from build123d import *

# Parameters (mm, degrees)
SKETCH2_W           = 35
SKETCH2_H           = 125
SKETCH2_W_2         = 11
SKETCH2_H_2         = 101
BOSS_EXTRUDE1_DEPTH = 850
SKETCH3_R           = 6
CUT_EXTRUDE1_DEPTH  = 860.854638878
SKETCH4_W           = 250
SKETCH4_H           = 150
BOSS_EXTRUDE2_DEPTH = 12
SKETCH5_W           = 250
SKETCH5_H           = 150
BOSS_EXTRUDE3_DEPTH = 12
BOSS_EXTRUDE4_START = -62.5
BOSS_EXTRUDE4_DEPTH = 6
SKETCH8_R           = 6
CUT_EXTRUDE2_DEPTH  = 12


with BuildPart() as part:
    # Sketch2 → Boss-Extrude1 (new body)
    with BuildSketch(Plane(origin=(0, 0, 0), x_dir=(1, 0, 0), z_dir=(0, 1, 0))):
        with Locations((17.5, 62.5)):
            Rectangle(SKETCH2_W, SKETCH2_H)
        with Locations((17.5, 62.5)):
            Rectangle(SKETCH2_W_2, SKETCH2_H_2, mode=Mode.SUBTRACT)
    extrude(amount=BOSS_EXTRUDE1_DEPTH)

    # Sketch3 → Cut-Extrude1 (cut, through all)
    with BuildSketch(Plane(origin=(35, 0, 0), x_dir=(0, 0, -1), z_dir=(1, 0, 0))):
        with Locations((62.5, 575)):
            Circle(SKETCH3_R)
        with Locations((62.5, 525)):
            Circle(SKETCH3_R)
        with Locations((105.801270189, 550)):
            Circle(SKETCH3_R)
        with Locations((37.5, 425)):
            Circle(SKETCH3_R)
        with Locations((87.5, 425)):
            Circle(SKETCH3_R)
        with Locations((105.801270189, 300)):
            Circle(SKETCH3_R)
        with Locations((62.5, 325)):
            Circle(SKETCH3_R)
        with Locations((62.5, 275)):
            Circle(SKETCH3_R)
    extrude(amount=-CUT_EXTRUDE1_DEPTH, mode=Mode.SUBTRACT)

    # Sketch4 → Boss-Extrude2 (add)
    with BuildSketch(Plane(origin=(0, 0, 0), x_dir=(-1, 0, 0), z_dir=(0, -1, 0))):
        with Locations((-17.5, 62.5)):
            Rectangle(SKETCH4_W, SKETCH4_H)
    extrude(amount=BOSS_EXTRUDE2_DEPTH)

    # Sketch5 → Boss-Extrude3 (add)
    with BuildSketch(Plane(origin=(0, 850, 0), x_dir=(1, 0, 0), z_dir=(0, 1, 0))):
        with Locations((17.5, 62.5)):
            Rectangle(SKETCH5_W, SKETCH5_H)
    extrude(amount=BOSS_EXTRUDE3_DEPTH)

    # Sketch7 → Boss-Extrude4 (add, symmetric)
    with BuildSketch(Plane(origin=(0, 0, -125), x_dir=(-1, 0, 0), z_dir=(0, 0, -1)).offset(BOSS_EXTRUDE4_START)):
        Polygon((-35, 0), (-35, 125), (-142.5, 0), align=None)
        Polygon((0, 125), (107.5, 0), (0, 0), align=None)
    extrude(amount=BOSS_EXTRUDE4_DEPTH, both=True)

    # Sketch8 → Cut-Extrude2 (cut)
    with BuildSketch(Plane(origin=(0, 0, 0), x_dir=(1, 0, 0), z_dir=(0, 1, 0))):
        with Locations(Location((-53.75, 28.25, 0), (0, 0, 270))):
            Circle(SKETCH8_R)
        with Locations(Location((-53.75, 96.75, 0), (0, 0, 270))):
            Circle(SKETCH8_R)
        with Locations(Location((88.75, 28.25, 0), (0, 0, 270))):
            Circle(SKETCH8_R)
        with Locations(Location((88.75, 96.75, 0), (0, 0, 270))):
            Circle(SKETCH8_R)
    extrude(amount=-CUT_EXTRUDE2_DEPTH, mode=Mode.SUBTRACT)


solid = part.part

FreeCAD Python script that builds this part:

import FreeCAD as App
import Part
import Sketcher
from FreeCAD import Vector

doc = App.newDocument("Part")
body = doc.addObject("PartDesign::Body", "Body")

# Sketch on XZ plane
sketch1 = body.newObject("Sketcher::SketchObject", "Sketch")
sketch1.AttachmentSupport = (doc.getObject("XZ_Plane"), [""])
sketch1.MapMode = "FlatFace"
sketch1.addGeometry(Part.LineSegment(Vector(0, -125, 0), Vector(0, 0, 0)), False)
sketch1.addGeometry(Part.LineSegment(Vector(0, 0, 0), Vector(35, 0, 0)), False)
sketch1.addGeometry(Part.LineSegment(Vector(35, 0, 0), Vector(35, -125, 0)), False)
sketch1.addGeometry(Part.LineSegment(Vector(35, -125, 0), Vector(0, -125, 0)), False)
sketch1.addGeometry(Part.LineSegment(Vector(23, -12, 0), Vector(12, -12, 0)), False)
sketch1.addGeometry(Part.LineSegment(Vector(12, -12, 0), Vector(12, -113, 0)), False)
sketch1.addGeometry(Part.LineSegment(Vector(12, -113, 0), Vector(23, -113, 0)), False)
sketch1.addGeometry(Part.LineSegment(Vector(23, -113, 0), Vector(23, -12, 0)), False)
sketch1.addConstraint(Sketcher.Constraint("Coincident", 0, 2, 1, 1))
sketch1.addConstraint(Sketcher.Constraint("Coincident", 1, 2, 2, 1))
sketch1.addConstraint(Sketcher.Constraint("Coincident", 2, 2, 3, 1))
sketch1.addConstraint(Sketcher.Constraint("Coincident", 3, 2, 0, 1))
sketch1.addConstraint(Sketcher.Constraint("Coincident", 4, 2, 5, 1))
sketch1.addConstraint(Sketcher.Constraint("Coincident", 5, 2, 6, 1))
sketch1.addConstraint(Sketcher.Constraint("Coincident", 6, 2, 7, 1))
sketch1.addConstraint(Sketcher.Constraint("Coincident", 7, 2, 4, 1))
sketch1.addConstraint(Sketcher.Constraint("Vertical", 0))
sketch1.addConstraint(Sketcher.Constraint("Horizontal", 1))
sketch1.addConstraint(Sketcher.Constraint("Vertical", 2))
sketch1.addConstraint(Sketcher.Constraint("Horizontal", 3))
sketch1.addConstraint(Sketcher.Constraint("Horizontal", 4))
sketch1.addConstraint(Sketcher.Constraint("Vertical", 5))
sketch1.addConstraint(Sketcher.Constraint("Horizontal", 6))
sketch1.addConstraint(Sketcher.Constraint("Vertical", 7))
sketch1.addConstraint(Sketcher.Constraint("Coincident", 0, 2, -1, 1))
sketch1.addConstraint(Sketcher.Constraint("DistanceX", 1, 1, 1, 2, 35.0))
sketch1.addConstraint(Sketcher.Constraint("DistanceX", 4, 2, 4, 1, 11.0))
sketch1.addConstraint(Sketcher.Constraint("DistanceY", 0, 1, 0, 2, 125.0))
sketch1.addConstraint(Sketcher.Constraint("DistanceY", 5, 2, 5, 1, 101.0))
sketch1.addConstraint(Sketcher.Constraint("DistanceX", -1, 1, 4, 2, 12.0))
sketch1.addConstraint(Sketcher.Constraint("DistanceY", 4, 2, -1, 1, 12.0))
pad1 = body.newObject("PartDesign::Pad", "Pad")
pad1.Profile = sketch1
pad1.Length = 850
pad1.Reversed = True

# Sketch on YZ plane
sketch2 = body.newObject("Sketcher::SketchObject", "Sketch001")
sketch2.AttachmentSupport = (doc.getObject("YZ_Plane"), [""])
sketch2.MapMode = "FlatFace"
sketch2.AttachmentOffset = App.Placement(Vector(0, 0, 35), App.Rotation())
sketch2.addGeometry(Part.Circle(Vector(575, -62, 0), Vector(0, 0, 1), 6), False)
sketch2.addGeometry(Part.Circle(Vector(525, -62, 0), Vector(0, 0, 1), 6), False)
sketch2.addGeometry(Part.Circle(Vector(550, -106, 0), Vector(0, 0, 1), 6), False)
sketch2.addGeometry(Part.Circle(Vector(425, -38, 0), Vector(0, 0, 1), 6), False)
sketch2.addGeometry(Part.Circle(Vector(425, -88, 0), Vector(0, 0, 1), 6), False)
sketch2.addGeometry(Part.Circle(Vector(300, -106, 0), Vector(0, 0, 1), 6), False)
sketch2.addGeometry(Part.Circle(Vector(325, -62, 0), Vector(0, 0, 1), 6), False)
sketch2.addGeometry(Part.Circle(Vector(275, -62, 0), Vector(0, 0, 1), 6), False)
sketch2.addConstraint(Sketcher.Constraint("Equal", 0, 1))
sketch2.addConstraint(Sketcher.Constraint("Equal", 1, 2))
sketch2.addConstraint(Sketcher.Constraint("Equal", 2, 3))
sketch2.addConstraint(Sketcher.Constraint("Equal", 3, 4))
sketch2.addConstraint(Sketcher.Constraint("Equal", 4, 5))
sketch2.addConstraint(Sketcher.Constraint("Equal", 5, 6))
sketch2.addConstraint(Sketcher.Constraint("Equal", 6, 7))
sketch2.addConstraint(Sketcher.Constraint("Horizontal", 0, 3, 1, 3))
sketch2.addConstraint(Sketcher.Constraint("Horizontal", 2, 3, 5, 3))
sketch2.addConstraint(Sketcher.Constraint("Horizontal", 1, 3, 6, 3))
sketch2.addConstraint(Sketcher.Constraint("Horizontal", 6, 3, 7, 3))
sketch2.addConstraint(Sketcher.Constraint("Vertical", 3, 3, 4, 3))
sketch2.addConstraint(Sketcher.Constraint("Diameter", 0, 12.0))
sketch2.addConstraint(Sketcher.Constraint("DistanceX", -1, 1, 0, 3, 575.0))
sketch2.addConstraint(Sketcher.Constraint("DistanceX", -1, 1, 1, 3, 525.0))
sketch2.addConstraint(Sketcher.Constraint("DistanceX", -1, 1, 2, 3, 550.0))
sketch2.addConstraint(Sketcher.Constraint("DistanceX", -1, 1, 3, 3, 425.0))
sketch2.addConstraint(Sketcher.Constraint("DistanceX", -1, 1, 5, 3, 300.0))
sketch2.addConstraint(Sketcher.Constraint("DistanceX", -1, 1, 6, 3, 325.0))
sketch2.addConstraint(Sketcher.Constraint("DistanceX", -1, 1, 7, 3, 275.0))
sketch2.addConstraint(Sketcher.Constraint("DistanceY", 1, 3, 3, 3, 25.0))
sketch2.addConstraint(Sketcher.Constraint("DistanceY", 4, 3, 3, 3, 50.0))
sketch2.addConstraint(Sketcher.Constraint("DistanceY", 0, 3, -1, 1, 62.5))
sketch2.addConstraint(Sketcher.Constraint("DistanceY", 2, 3, -1, 1, 105.80127))
pocket1 = body.newObject("PartDesign::Pocket", "Pocket")
pocket1.Profile = sketch2
pocket1.Type = "ThroughAll"

# Sketch on XZ plane
sketch3 = body.newObject("Sketcher::SketchObject", "Sketch002")
sketch3.AttachmentSupport = (doc.getObject("XZ_Plane"), [""])
sketch3.MapMode = "FlatFace"
sketch3.addGeometry(Part.LineSegment(Vector(142, -138, 0), Vector(142, 12, 0)), False)
sketch3.addGeometry(Part.LineSegment(Vector(142, 12, 0), Vector(-108, 12, 0)), False)
sketch3.addGeometry(Part.LineSegment(Vector(-108, 12, 0), Vector(-108, -138, 0)), False)
sketch3.addGeometry(Part.LineSegment(Vector(-108, -138, 0), Vector(142, -138, 0)), False)
sketch3.addConstraint(Sketcher.Constraint("Coincident", 0, 2, 1, 1))
sketch3.addConstraint(Sketcher.Constraint("Coincident", 1, 2, 2, 1))
sketch3.addConstraint(Sketcher.Constraint("Coincident", 2, 2, 3, 1))
sketch3.addConstraint(Sketcher.Constraint("Coincident", 3, 2, 0, 1))
sketch3.addConstraint(Sketcher.Constraint("Vertical", 0))
sketch3.addConstraint(Sketcher.Constraint("Horizontal", 1))
sketch3.addConstraint(Sketcher.Constraint("Vertical", 2))
sketch3.addConstraint(Sketcher.Constraint("Horizontal", 3))
sketch3.addConstraint(Sketcher.Constraint("DistanceX", 1, 2, 1, 1, 250.0))
sketch3.addConstraint(Sketcher.Constraint("DistanceY", 0, 1, 0, 2, 150.0))
sketch3.addConstraint(Sketcher.Constraint("DistanceX", -1, 1, 0, 2, 142.5))
sketch3.addConstraint(Sketcher.Constraint("DistanceY", -1, 1, 0, 2, 12.5))
pad2 = body.newObject("PartDesign::Pad", "Pad001")
pad2.Profile = sketch3
pad2.Length = 12

# Sketch on XZ plane
sketch4 = body.newObject("Sketcher::SketchObject", "Sketch003")
sketch4.AttachmentSupport = (doc.getObject("XZ_Plane"), [""])
sketch4.MapMode = "FlatFace"
sketch4.AttachmentOffset = App.Placement(Vector(0, 0, -850), App.Rotation())
sketch4.addGeometry(Part.LineSegment(Vector(-108, -138, 0), Vector(-108, 12, 0)), False)
sketch4.addGeometry(Part.LineSegment(Vector(-108, 12, 0), Vector(142, 12, 0)), False)
sketch4.addGeometry(Part.LineSegment(Vector(142, 12, 0), Vector(142, -138, 0)), False)
sketch4.addGeometry(Part.LineSegment(Vector(142, -138, 0), Vector(-108, -138, 0)), False)
sketch4.addConstraint(Sketcher.Constraint("Coincident", 0, 2, 1, 1))
sketch4.addConstraint(Sketcher.Constraint("Coincident", 1, 2, 2, 1))
sketch4.addConstraint(Sketcher.Constraint("Coincident", 2, 2, 3, 1))
sketch4.addConstraint(Sketcher.Constraint("Coincident", 3, 2, 0, 1))
sketch4.addConstraint(Sketcher.Constraint("Vertical", 0))
sketch4.addConstraint(Sketcher.Constraint("Horizontal", 1))
sketch4.addConstraint(Sketcher.Constraint("Vertical", 2))
sketch4.addConstraint(Sketcher.Constraint("Horizontal", 3))
sketch4.addConstraint(Sketcher.Constraint("DistanceX", 1, 1, 1, 2, 250.0))
sketch4.addConstraint(Sketcher.Constraint("DistanceY", 0, 1, 0, 2, 150.0))
sketch4.addConstraint(Sketcher.Constraint("DistanceX", 0, 2, -1, 1, 107.5))
sketch4.addConstraint(Sketcher.Constraint("DistanceY", -1, 1, 0, 2, 12.5))
pad3 = body.newObject("PartDesign::Pad", "Pad002")
pad3.Profile = sketch4
pad3.Length = 12
pad3.Reversed = True

# Sketch on XY plane
sketch5 = body.newObject("Sketcher::SketchObject", "Sketch004")
sketch5.AttachmentSupport = (doc.getObject("XY_Plane"), [""])
sketch5.MapMode = "FlatFace"
sketch5.AttachmentOffset = App.Placement(Vector(0, 0, -62.5), App.Rotation())
sketch5.addGeometry(Part.LineSegment(Vector(35, 0, 0), Vector(35, 125, 0)), False)
sketch5.addGeometry(Part.LineSegment(Vector(35, 125, 0), Vector(142, 0, 0)), False)
sketch5.addGeometry(Part.LineSegment(Vector(142, 0, 0), Vector(35, 0, 0)), False)
sketch5.addGeometry(Part.LineSegment(Vector(-108, 0, 0), Vector(0, 125, 0)), False)
sketch5.addGeometry(Part.LineSegment(Vector(0, 125, 0), Vector(0, 0, 0)), False)
sketch5.addGeometry(Part.LineSegment(Vector(0, 0, 0), Vector(-108, 0, 0)), False)
sketch5.addConstraint(Sketcher.Constraint("Coincident", 0, 2, 1, 1))
sketch5.addConstraint(Sketcher.Constraint("Coincident", 1, 2, 2, 1))
sketch5.addConstraint(Sketcher.Constraint("Coincident", 2, 2, 0, 1))
sketch5.addConstraint(Sketcher.Constraint("Coincident", 3, 2, 4, 1))
sketch5.addConstraint(Sketcher.Constraint("Coincident", 4, 2, 5, 1))
sketch5.addConstraint(Sketcher.Constraint("Coincident", 5, 2, 3, 1))
sketch5.addConstraint(Sketcher.Constraint("Vertical", 0))
sketch5.addConstraint(Sketcher.Constraint("Horizontal", 2))
sketch5.addConstraint(Sketcher.Constraint("Vertical", 4))
sketch5.addConstraint(Sketcher.Constraint("Horizontal", 5))
sketch5.addConstraint(Sketcher.Constraint("Coincident", 4, 2, -1, 1))
sketch5.addConstraint(Sketcher.Constraint("PointOnObject", 1, 2, -1))
sketch5.addConstraint(Sketcher.Constraint("Horizontal", 0, 2, 3, 2))
sketch5.addConstraint(Sketcher.Constraint("Equal", 2, 5))
sketch5.addConstraint(Sketcher.Constraint("DistanceY", 0, 1, 0, 2, 125.0))
sketch5.addConstraint(Sketcher.Constraint("DistanceX", 2, 2, 2, 1, 107.5))
sketch5.addConstraint(Sketcher.Constraint("DistanceX", -1, 1, 0, 2, 35.0))
pad4 = body.newObject("PartDesign::Pad", "Pad003")
pad4.Profile = sketch5
pad4.Length = 12
pad4.Midplane = True

# Sketch on XZ plane
sketch6 = body.newObject("Sketcher::SketchObject", "Sketch005")
sketch6.AttachmentSupport = (doc.getObject("XZ_Plane"), [""])
sketch6.MapMode = "FlatFace"
sketch6.addGeometry(Part.Circle(Vector(-54, -28, 0), Vector(0, 0, 1), 6), False)
sketch6.addGeometry(Part.Circle(Vector(-54, -97, 0), Vector(0, 0, 1), 6), False)
sketch6.addGeometry(Part.Circle(Vector(89, -28, 0), Vector(0, 0, 1), 6), False)
sketch6.addGeometry(Part.Circle(Vector(89, -97, 0), Vector(0, 0, 1), 6), False)
sketch6.addConstraint(Sketcher.Constraint("Equal", 0, 1))
sketch6.addConstraint(Sketcher.Constraint("Equal", 1, 2))
sketch6.addConstraint(Sketcher.Constraint("Equal", 2, 3))
sketch6.addConstraint(Sketcher.Constraint("Horizontal", 0, 3, 2, 3))
sketch6.addConstraint(Sketcher.Constraint("Horizontal", 1, 3, 3, 3))
sketch6.addConstraint(Sketcher.Constraint("Vertical", 0, 3, 1, 3))
sketch6.addConstraint(Sketcher.Constraint("Vertical", 2, 3, 3, 3))
sketch6.addConstraint(Sketcher.Constraint("Diameter", 0, 12.0))
sketch6.addConstraint(Sketcher.Constraint("DistanceY", 1, 3, 0, 3, 68.5))
sketch6.addConstraint(Sketcher.Constraint("DistanceX", 0, 3, 2, 3, 142.5))
sketch6.addConstraint(Sketcher.Constraint("DistanceX", 0, 3, -1, 1, 53.75))
sketch6.addConstraint(Sketcher.Constraint("DistanceY", 0, 3, -1, 1, 28.25))
pocket2 = body.newObject("PartDesign::Pocket", "Pocket001")
pocket2.Profile = sketch6
pocket2.Length = 12
pocket2.Reversed = True

doc.recompute()
